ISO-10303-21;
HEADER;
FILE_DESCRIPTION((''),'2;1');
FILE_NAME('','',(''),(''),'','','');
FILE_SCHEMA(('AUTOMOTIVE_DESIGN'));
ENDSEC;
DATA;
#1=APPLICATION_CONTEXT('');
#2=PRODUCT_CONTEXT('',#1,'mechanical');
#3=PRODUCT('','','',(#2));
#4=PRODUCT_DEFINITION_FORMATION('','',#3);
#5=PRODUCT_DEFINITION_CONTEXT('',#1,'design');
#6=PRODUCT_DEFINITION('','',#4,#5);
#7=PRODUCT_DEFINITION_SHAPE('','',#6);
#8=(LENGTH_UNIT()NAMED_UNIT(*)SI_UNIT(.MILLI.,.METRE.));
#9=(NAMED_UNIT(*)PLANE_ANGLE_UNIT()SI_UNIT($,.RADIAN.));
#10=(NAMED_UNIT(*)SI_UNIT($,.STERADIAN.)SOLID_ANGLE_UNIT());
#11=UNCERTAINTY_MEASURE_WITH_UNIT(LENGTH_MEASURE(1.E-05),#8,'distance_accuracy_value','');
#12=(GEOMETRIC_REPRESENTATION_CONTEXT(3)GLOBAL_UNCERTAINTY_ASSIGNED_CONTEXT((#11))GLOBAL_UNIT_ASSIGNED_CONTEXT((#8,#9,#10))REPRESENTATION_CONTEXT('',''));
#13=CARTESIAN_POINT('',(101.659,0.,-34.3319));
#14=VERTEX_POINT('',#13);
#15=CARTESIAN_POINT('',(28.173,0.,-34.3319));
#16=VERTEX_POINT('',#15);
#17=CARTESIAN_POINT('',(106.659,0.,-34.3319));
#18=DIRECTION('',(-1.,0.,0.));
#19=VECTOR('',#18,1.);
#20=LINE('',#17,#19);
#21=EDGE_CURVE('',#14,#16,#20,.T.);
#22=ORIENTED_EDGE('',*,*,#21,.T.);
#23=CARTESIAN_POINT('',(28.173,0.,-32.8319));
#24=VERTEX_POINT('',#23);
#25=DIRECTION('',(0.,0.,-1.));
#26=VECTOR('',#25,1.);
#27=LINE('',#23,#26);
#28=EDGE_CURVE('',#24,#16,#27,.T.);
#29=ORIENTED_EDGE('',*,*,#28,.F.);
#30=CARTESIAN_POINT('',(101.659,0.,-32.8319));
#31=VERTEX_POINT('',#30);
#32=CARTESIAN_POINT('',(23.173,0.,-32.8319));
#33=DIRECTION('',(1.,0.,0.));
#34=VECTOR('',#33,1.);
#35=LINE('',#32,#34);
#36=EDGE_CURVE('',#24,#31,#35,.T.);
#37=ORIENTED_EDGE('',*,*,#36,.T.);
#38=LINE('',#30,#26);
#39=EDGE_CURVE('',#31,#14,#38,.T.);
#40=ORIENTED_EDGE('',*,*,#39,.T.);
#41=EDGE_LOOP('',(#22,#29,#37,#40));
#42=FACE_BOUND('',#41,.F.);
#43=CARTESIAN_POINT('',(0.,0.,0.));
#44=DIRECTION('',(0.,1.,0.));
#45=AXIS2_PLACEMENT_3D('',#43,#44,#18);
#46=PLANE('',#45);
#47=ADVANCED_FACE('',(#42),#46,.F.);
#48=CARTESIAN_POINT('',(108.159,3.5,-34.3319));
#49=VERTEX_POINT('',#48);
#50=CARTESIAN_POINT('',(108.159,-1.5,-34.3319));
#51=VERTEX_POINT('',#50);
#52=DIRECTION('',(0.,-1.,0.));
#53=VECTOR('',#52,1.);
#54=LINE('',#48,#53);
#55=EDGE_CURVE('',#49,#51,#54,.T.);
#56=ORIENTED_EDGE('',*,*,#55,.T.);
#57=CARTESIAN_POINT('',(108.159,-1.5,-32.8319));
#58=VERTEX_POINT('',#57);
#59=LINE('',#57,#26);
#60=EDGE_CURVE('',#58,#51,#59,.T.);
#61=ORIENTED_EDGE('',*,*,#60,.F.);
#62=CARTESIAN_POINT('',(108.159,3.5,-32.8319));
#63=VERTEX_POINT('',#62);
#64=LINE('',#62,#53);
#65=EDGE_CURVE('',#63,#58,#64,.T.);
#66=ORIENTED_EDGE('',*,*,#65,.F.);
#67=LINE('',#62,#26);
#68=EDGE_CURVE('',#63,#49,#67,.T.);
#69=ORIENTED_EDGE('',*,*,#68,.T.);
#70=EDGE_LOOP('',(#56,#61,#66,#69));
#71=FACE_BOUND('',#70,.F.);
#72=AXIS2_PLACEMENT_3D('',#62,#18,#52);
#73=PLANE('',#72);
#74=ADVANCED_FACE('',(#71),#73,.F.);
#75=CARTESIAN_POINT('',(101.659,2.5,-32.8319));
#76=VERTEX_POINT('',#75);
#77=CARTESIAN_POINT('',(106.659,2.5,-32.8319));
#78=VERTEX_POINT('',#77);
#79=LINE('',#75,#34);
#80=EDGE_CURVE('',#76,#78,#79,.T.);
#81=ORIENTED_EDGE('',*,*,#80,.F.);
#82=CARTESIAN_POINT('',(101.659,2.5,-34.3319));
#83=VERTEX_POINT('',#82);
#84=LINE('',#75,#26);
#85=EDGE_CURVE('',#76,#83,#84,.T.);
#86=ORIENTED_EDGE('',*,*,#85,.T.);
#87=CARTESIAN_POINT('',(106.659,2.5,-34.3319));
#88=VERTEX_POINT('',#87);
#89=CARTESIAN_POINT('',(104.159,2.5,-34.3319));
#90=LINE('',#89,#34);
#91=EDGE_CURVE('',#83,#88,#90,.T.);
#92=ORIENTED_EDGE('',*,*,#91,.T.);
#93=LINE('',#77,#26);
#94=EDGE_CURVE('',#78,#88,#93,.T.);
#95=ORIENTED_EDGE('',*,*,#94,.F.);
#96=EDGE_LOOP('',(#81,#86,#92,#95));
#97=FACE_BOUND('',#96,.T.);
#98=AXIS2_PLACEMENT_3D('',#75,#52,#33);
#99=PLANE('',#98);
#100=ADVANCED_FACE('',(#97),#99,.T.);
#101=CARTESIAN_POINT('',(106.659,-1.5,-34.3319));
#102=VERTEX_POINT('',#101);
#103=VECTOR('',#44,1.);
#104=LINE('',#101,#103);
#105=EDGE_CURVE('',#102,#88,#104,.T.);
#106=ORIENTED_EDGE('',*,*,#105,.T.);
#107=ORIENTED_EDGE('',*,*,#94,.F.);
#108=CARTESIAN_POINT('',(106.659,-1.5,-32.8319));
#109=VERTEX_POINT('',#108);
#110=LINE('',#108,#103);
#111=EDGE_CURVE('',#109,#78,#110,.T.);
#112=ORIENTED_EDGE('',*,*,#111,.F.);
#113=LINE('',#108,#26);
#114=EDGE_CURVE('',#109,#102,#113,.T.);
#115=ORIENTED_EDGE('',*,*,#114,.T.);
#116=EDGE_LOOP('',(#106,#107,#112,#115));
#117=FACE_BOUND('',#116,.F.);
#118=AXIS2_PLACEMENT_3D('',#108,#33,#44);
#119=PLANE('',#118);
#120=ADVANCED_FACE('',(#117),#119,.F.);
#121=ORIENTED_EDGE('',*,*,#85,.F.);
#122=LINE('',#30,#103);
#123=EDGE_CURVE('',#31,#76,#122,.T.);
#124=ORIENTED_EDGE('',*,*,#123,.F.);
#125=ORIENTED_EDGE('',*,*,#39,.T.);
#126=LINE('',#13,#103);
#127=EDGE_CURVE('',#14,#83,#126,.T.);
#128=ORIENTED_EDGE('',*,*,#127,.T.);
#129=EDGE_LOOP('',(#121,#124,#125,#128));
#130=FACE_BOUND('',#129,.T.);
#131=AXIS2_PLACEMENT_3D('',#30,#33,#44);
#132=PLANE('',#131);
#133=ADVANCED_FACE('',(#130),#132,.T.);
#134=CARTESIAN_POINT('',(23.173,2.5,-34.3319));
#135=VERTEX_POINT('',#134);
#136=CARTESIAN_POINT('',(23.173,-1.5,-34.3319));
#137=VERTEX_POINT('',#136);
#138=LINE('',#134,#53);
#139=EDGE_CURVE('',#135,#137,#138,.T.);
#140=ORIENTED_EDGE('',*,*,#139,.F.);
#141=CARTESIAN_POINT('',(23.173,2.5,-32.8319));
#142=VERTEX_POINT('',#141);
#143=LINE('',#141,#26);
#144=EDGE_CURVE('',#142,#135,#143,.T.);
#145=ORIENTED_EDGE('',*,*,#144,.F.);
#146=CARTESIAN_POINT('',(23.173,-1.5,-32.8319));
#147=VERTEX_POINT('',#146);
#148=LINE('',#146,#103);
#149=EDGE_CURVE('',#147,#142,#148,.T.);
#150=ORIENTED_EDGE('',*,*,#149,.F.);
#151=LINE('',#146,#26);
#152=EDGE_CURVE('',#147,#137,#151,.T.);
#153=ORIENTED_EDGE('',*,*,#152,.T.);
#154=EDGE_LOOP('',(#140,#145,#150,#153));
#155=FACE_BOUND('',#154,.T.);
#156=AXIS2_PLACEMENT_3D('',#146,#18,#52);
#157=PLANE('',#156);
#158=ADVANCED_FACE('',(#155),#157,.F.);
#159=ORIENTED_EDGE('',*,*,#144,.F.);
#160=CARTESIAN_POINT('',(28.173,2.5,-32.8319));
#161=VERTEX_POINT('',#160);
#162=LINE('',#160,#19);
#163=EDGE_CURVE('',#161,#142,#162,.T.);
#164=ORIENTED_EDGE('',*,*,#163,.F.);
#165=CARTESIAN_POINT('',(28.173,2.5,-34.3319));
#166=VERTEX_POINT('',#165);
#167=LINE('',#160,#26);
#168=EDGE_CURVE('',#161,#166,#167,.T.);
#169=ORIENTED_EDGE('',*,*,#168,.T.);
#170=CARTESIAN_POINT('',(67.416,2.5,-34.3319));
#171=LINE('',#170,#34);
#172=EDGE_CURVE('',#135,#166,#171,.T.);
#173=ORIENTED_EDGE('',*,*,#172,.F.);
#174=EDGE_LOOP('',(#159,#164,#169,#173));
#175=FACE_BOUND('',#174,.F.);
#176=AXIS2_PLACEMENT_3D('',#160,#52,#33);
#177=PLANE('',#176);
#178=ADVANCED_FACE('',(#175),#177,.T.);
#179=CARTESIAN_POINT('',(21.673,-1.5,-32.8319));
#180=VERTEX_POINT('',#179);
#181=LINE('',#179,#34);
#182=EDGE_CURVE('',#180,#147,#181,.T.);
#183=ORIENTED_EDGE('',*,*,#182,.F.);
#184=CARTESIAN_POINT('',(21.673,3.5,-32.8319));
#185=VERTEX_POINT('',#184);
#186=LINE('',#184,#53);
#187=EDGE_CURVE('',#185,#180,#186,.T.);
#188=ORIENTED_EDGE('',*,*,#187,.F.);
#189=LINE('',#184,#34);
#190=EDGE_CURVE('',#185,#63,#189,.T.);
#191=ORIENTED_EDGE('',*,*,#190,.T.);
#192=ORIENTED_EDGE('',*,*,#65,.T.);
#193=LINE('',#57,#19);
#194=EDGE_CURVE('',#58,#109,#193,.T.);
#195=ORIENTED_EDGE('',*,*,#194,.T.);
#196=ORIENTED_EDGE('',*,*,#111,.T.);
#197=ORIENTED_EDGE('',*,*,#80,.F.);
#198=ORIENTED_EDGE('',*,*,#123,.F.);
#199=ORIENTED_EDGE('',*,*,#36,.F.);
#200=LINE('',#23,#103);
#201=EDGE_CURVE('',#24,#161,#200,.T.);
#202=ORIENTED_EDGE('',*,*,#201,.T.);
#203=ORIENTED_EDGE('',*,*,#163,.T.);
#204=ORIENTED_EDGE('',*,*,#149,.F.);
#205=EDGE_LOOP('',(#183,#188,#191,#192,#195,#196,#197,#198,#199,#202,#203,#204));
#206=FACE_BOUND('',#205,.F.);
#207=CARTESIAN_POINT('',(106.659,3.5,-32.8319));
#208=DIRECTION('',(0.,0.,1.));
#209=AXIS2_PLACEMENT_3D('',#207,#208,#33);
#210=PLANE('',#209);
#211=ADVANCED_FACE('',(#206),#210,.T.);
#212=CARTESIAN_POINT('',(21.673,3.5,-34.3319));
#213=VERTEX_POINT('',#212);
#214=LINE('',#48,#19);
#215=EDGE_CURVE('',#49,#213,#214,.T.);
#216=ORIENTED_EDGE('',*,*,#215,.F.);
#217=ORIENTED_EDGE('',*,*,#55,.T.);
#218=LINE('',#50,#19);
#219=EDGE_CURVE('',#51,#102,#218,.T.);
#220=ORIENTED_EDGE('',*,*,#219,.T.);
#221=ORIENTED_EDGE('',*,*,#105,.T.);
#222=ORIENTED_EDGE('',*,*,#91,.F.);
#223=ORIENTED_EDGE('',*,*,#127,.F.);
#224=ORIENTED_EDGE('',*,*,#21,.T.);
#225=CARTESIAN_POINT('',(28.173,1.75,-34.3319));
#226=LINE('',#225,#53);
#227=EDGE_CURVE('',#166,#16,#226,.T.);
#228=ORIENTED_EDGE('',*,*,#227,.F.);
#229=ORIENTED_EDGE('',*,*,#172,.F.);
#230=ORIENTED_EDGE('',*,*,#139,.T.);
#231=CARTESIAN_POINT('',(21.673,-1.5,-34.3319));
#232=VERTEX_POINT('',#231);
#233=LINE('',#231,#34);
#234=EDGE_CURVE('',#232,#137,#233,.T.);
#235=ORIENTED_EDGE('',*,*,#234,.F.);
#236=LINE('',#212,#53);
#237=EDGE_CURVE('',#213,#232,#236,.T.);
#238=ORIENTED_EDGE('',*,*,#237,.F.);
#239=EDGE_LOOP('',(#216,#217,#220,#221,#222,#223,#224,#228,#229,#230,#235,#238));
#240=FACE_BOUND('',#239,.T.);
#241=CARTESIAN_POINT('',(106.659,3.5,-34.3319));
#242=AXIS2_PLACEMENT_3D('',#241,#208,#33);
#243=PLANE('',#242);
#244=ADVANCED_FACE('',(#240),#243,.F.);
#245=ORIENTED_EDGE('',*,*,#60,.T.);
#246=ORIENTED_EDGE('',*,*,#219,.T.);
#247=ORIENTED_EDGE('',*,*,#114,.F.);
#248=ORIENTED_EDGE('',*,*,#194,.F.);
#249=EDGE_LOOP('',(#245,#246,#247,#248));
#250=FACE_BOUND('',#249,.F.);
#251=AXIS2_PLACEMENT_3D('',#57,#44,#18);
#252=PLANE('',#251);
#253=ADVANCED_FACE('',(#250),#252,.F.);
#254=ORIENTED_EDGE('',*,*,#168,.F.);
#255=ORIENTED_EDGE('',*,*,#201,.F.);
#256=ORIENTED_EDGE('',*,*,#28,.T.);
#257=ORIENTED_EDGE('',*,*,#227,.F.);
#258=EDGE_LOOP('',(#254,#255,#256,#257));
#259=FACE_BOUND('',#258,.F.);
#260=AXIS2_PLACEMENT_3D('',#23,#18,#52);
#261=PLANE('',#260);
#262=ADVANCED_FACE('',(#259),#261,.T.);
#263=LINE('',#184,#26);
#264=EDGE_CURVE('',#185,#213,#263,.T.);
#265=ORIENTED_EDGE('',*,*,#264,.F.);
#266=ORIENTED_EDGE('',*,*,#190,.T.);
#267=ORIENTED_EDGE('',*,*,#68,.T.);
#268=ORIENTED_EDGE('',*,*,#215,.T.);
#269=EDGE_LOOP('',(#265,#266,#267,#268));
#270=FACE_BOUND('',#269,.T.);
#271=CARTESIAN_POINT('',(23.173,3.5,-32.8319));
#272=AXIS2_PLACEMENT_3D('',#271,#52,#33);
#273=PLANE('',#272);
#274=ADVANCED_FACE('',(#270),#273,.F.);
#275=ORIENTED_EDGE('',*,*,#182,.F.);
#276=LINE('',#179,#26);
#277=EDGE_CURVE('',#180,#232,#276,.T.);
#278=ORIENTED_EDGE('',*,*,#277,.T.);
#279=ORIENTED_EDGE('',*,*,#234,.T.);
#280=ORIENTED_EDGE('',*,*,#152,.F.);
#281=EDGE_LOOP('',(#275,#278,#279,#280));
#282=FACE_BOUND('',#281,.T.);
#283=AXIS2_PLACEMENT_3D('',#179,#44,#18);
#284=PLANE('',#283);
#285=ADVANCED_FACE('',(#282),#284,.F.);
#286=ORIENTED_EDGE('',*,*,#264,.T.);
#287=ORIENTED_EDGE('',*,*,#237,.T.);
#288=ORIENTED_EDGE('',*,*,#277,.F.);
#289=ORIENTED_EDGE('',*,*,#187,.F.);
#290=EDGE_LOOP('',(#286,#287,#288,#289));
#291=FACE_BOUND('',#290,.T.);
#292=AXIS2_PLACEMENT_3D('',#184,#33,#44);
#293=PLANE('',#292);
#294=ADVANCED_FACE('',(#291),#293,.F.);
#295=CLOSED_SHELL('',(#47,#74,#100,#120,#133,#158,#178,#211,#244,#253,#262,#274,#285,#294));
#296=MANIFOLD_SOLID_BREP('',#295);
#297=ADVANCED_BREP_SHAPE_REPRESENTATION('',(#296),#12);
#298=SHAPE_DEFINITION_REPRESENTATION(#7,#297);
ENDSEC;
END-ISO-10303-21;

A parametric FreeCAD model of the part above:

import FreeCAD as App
import Part
import Sketcher
from FreeCAD import Vector
Q = App.Units.Quantity


def add_polygon(sketch, points):
    """Adds a closed chain of lines whose ends are joined by coincident constraints."""
    first, n = sketch.GeometryCount, len(points)
    for a, b in zip(points, points[1:] + points[:1]):
        sketch.addGeometry(Part.LineSegment(App.Vector(*a, 0), App.Vector(*b, 0)), False)
    for i in range(n):
        sketch.addConstraint(Sketcher.Constraint("Coincident", first + i, 2, first + (i + 1) % n, 1))

doc = App.newDocument("Part")
body = doc.addObject("PartDesign::Body", "Body")

sketch1 = body.newObject("Sketcher::SketchObject", "Sketch")
sketch1.AttachmentSupport = (doc.getObject("XZ_Plane"), [""])
sketch1.MapMode = "FlatFace"
add_polygon(sketch1, [(23.2, -34.3), (23.2, -32.8), (106.7, -32.8), (106.7, -34.3)])
sketch1.addConstraint([
    Sketcher.Constraint("Vertical", 0),
    Sketcher.Constraint("Horizontal", 1),
    Sketcher.Constraint("Vertical", 2),
    Sketcher.Constraint("Horizontal", 3),
    Sketcher.Constraint("DistanceY", 0, 1, 0, 2, Q("1.5 mm")),
    Sketcher.Constraint("DistanceX", 1, 1, 1, 2, Q("83.486 mm")),
    Sketcher.Constraint("DistanceX", -1, 1, 0, 2, Q("23.173 mm")),
    Sketcher.Constraint("DistanceY", 0, 2, -1, 1, Q("32.832 mm")),
])
pad1 = body.newObject("PartDesign::Pad", "Pad")
pad1.Profile = sketch1
pad1.Length = 3.5
pad1.Reversed = True

sketch2 = body.newObject("Sketcher::SketchObject", "Sketch001")
sketch2.AttachmentSupport = (doc.getObject("XY_Plane"), [""])
sketch2.MapMode = "FlatFace"
sketch2.AttachmentOffset = App.Placement(Vector(0, 0, -32.8319), App.Rotation())
add_polygon(sketch2, [(101.7, 0), (106.7, 0), (106.7, 2.5), (101.7, 2.5)])
sketch2.addConstraint([
    Sketcher.Constraint("Horizontal", 0),
    Sketcher.Constraint("Vertical", 1),
    Sketcher.Constraint("Horizontal", 2),
    Sketcher.Constraint("Vertical", 3),
    Sketcher.Constraint("PointOnObject", 0, 2, -1),
    Sketcher.Constraint("DistanceX", 0, 1, 0, 2, Q("5 mm")),
    Sketcher.Constraint("DistanceY", 1, 1, 1, 2, Q("2.5 mm")),
    Sketcher.Constraint("DistanceX", -1, 1, 0, 2, Q("106.659 mm")),
])
pocket1 = body.newObject("PartDesign::Pocket", "Pocket")
pocket1.Profile = sketch2
pocket1.Length = 3.5

sketch3 = body.newObject("Sketcher::SketchObject", "Sketch002")
sketch3.AttachmentSupport = (doc.getObject("XY_Plane"), [""])
sketch3.MapMode = "FlatFace"
sketch3.AttachmentOffset = App.Placement(Vector(0, 0, -32.8319), App.Rotation())
add_polygon(sketch3, [(108.2, 3.5), (106.7, 3.5), (106.7, -1.5), (108.2, -1.5)])
sketch3.addConstraint([
    Sketcher.Constraint("Horizontal", 0),
    Sketcher.Constraint("Vertical", 1),
    Sketcher.Constraint("Horizontal", 2),
    Sketcher.Constraint("Vertical", 3),
    Sketcher.Constraint("DistanceY", 1, 2, 1, 1, Q("5 mm")),
    Sketcher.Constraint("DistanceX", 0, 2, 0, 1, Q("1.5 mm")),
    Sketcher.Constraint("DistanceY", 1, 2, -1, 1, Q("1.5 mm")),
    Sketcher.Constraint("DistanceX", -1, 1, 0, 2, Q("106.659 mm")),
])
pad2 = body.newObject("PartDesign::Pad", "Pad001")
pad2.Profile = sketch3
pad2.Length = 1.5
pad2.Reversed = True
doc.recompute()

datumplane = body.newObject("PartDesign::Plane", "DatumPlane")
datumplane.AttachmentSupport = (doc.getObject("YZ_Plane"), [""])
datumplane.MapMode = "FlatFace"
datumplane.AttachmentOffset = App.Placement(Vector(0, 0, 64.916), App.Rotation())
mirrored = body.newObject("PartDesign::Mirrored", "Mirrored")
mirrored.Originals = [pad2, pocket1]
mirrored.MirrorPlane = (datumplane, [""])
body.Tip = mirrored

doc.recompute()
